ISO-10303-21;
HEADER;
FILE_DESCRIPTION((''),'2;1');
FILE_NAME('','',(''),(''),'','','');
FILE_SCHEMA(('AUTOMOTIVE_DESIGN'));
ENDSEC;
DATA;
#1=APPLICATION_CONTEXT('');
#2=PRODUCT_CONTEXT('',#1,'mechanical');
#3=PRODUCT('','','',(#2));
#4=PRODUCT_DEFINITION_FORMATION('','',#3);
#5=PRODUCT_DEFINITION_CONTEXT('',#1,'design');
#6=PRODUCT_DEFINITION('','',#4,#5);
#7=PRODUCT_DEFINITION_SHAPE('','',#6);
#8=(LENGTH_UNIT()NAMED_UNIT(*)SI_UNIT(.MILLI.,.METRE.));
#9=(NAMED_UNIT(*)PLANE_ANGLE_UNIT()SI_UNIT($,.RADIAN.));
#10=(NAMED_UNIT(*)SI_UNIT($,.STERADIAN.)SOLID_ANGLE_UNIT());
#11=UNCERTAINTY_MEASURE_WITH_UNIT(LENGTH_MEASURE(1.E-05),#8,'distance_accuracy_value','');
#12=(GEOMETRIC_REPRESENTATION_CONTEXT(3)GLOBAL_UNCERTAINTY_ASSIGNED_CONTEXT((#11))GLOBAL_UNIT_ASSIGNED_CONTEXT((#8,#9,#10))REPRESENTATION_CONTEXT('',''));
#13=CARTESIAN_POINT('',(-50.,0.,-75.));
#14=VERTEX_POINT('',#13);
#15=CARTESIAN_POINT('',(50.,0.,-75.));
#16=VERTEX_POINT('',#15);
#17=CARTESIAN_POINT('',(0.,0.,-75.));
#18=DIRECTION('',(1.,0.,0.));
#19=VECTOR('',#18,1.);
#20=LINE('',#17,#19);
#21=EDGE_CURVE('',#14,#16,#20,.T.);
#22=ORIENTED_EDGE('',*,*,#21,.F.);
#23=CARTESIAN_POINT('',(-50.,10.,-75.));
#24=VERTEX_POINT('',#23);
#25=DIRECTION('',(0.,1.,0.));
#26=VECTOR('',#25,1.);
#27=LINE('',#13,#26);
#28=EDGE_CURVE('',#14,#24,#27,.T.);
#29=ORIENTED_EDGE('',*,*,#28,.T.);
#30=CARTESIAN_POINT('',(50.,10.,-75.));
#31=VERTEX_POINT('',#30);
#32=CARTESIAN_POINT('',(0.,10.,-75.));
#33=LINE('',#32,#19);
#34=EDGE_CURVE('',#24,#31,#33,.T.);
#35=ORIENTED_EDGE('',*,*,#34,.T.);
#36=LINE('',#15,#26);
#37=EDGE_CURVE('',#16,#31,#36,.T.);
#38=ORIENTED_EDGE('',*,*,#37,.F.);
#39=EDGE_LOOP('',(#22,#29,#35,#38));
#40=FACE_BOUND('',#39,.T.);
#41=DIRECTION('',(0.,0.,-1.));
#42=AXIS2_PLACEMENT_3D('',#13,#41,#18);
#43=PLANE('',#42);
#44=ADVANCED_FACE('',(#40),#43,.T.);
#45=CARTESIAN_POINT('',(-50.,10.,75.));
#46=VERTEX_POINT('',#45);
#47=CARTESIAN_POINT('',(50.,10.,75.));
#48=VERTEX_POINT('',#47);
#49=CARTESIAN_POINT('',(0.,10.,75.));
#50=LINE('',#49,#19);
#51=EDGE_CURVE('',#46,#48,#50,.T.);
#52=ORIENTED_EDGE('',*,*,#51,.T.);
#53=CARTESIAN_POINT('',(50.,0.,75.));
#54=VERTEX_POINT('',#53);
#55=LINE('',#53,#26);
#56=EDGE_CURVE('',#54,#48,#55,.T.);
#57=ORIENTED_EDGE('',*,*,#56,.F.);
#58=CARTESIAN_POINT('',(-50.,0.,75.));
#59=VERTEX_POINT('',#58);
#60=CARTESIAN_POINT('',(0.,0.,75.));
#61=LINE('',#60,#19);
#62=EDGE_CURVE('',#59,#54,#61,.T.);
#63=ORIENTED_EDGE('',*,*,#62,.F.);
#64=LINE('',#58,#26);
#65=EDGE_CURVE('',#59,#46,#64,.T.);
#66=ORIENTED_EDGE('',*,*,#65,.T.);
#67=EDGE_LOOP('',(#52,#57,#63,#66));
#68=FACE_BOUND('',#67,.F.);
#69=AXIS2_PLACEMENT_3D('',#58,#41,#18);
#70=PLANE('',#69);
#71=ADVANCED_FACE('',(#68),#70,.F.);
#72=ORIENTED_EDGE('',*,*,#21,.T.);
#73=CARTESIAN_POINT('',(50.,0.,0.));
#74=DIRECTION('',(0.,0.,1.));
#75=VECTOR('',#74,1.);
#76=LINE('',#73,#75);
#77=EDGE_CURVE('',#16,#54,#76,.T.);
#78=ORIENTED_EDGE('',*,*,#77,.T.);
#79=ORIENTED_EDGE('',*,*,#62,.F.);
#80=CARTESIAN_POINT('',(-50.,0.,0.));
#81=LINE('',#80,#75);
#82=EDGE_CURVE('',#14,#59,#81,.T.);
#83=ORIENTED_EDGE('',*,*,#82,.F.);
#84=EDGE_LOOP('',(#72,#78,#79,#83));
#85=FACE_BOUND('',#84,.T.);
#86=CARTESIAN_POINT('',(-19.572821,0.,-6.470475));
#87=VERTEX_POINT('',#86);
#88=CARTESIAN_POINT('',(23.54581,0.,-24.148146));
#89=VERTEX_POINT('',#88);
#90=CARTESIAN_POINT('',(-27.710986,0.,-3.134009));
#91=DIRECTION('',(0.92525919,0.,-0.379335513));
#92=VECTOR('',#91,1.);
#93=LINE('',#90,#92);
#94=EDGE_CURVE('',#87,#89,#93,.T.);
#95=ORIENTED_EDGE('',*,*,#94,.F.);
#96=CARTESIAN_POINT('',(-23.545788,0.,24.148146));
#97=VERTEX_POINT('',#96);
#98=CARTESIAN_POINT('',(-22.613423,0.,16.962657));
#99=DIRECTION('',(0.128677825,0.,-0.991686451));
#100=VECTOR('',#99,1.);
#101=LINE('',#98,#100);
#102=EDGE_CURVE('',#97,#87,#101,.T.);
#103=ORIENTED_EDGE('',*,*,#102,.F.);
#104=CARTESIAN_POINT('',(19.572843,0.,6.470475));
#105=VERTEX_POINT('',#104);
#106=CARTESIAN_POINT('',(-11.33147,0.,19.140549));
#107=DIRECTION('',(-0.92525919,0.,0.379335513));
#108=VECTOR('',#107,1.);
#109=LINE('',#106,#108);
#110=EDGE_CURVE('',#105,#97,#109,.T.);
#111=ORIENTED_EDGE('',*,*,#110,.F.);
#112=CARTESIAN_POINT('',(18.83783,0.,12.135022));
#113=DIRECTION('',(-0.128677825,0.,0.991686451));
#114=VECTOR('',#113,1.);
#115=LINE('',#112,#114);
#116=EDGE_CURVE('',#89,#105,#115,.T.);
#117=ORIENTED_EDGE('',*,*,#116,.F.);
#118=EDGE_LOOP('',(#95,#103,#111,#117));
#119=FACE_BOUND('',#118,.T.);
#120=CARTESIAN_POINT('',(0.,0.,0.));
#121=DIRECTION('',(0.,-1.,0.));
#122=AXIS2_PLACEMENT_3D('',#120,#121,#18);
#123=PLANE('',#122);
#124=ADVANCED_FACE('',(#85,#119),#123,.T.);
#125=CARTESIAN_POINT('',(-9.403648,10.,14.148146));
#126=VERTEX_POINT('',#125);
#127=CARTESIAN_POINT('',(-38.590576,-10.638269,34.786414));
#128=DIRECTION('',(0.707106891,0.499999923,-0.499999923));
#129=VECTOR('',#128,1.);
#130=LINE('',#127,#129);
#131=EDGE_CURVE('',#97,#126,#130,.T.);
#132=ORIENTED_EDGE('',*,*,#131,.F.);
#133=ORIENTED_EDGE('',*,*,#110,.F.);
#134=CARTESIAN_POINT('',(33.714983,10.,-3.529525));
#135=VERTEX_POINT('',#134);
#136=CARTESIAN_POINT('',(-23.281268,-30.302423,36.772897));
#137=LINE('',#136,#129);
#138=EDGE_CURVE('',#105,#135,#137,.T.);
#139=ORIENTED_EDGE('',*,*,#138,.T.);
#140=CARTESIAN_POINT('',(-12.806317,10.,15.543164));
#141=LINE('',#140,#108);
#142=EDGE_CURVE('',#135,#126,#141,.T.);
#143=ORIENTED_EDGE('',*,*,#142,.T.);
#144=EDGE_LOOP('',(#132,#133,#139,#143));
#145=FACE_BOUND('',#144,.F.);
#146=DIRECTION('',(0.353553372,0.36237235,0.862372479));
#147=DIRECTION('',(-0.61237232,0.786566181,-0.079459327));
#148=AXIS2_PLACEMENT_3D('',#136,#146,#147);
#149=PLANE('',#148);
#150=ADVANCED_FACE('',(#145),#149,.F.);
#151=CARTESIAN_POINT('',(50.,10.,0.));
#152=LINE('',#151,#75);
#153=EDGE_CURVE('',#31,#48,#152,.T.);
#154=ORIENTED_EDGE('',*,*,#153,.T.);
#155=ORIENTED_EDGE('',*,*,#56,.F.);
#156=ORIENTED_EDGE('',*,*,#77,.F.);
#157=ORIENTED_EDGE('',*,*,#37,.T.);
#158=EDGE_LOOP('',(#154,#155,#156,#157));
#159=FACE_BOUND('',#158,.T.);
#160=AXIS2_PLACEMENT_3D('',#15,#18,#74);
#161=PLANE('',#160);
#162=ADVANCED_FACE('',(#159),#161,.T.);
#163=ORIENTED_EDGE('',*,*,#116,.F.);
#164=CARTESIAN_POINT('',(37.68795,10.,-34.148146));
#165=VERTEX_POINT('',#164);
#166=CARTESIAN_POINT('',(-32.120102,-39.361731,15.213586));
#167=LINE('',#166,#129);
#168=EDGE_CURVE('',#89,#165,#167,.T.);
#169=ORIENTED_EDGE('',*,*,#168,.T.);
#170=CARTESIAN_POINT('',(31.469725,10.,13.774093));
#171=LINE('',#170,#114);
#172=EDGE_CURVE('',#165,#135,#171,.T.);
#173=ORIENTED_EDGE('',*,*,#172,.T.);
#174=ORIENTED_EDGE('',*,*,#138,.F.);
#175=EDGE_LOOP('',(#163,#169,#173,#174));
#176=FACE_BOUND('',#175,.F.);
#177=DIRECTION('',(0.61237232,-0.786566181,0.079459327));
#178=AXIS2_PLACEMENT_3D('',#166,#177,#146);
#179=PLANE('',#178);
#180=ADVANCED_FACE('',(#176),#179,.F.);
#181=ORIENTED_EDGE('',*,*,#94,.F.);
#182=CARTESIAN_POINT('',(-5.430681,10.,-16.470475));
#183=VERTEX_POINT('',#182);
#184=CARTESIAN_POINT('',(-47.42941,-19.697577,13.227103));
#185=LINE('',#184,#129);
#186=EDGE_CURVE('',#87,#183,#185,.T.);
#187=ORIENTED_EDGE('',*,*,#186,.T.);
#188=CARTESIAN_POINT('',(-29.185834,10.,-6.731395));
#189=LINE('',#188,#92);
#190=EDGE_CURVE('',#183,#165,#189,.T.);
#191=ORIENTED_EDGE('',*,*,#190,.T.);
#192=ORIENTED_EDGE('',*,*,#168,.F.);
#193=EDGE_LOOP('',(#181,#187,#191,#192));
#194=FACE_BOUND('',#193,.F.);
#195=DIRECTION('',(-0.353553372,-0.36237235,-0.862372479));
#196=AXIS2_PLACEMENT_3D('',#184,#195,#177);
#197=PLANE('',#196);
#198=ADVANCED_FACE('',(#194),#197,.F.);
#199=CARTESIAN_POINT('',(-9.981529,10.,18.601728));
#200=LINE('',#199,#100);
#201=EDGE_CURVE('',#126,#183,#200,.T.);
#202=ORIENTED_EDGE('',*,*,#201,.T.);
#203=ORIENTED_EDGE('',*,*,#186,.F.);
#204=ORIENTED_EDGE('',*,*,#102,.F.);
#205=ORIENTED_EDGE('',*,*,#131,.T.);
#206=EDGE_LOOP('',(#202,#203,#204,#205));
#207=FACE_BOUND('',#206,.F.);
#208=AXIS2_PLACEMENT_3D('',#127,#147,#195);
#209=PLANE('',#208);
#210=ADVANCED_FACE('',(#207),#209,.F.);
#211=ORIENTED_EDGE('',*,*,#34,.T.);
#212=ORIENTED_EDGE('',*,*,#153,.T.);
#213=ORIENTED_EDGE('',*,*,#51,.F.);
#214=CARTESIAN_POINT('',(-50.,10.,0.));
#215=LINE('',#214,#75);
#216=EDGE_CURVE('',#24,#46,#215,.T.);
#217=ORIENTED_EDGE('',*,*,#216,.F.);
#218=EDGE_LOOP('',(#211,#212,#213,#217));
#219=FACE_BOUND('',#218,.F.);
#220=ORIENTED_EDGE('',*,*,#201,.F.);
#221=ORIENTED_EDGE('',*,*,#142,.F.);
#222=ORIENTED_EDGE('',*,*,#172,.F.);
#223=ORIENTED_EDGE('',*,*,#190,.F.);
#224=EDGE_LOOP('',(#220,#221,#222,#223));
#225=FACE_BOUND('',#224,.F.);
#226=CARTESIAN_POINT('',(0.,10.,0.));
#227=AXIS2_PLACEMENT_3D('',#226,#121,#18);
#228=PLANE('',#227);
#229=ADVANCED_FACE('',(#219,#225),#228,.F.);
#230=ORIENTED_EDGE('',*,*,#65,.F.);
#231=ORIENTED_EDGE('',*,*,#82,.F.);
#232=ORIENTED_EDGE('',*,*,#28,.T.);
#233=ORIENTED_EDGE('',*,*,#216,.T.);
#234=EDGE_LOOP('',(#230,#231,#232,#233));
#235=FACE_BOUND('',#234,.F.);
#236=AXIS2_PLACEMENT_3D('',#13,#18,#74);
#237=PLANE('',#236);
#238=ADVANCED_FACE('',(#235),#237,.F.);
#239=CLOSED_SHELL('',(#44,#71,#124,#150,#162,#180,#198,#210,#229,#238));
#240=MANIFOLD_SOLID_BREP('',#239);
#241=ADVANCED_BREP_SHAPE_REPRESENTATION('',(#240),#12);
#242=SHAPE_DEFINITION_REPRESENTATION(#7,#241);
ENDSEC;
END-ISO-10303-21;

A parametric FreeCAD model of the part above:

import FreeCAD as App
import Part
import Sketcher
from FreeCAD import Vector

doc = App.newDocument("Part")
params = doc.addObject("Spreadsheet::Sheet", "Params")
for row, (alias, value) in enumerate([
    ("sketch1_width", "100 mm"),
    ("sketch1_height", "150 mm"),
    ("pad1_length", "10 mm"),
    ("sketch2_length", "25 mm"),
], start=1):
    params.set(f"A{row}", alias)
    params.set(f"B{row}", "=" + value)
    params.setAlias(f"B{row}", alias)

body = doc.addObject("PartDesign::Body", "Body")

# Sketch on XZ plane
sketch1 = doc.addObject("Sketcher::SketchObject", "Sketch")
body.addObject(sketch1)
sketch1.AttachmentSupport = (doc.XZ_Plane, [""])
sketch1.MapMode = "FlatFace"
sketch1.addGeometry(Part.LineSegment(Vector(-50, 75, 0), Vector(-50, -75, 0)), False)
sketch1.addGeometry(Part.LineSegment(Vector(-50, -75, 0), Vector(50, -75, 0)), False)
sketch1.addGeometry(Part.LineSegment(Vector(50, -75, 0), Vector(50, 75, 0)), False)
sketch1.addGeometry(Part.LineSegment(Vector(50, 75, 0), Vector(-50, 75, 0)), False)
sketch1.addConstraint(Sketcher.Constraint("Coincident", 0, 2, 1, 1))
sketch1.addConstraint(Sketcher.Constraint("Coincident", 1, 2, 2, 1))
sketch1.addConstraint(Sketcher.Constraint("Coincident", 2, 2, 3, 1))
sketch1.addConstraint(Sketcher.Constraint("Coincident", 3, 2, 0, 1))
sketch1.addConstraint(Sketcher.Constraint("Vertical", 0))
sketch1.addConstraint(Sketcher.Constraint("Horizontal", 1))
sketch1.addConstraint(Sketcher.Constraint("Vertical", 2))
sketch1.addConstraint(Sketcher.Constraint("Horizontal", 3))
sketch1.addConstraint(Sketcher.Constraint("Symmetric", 0, 2, 2, 2, -1, 1))
sketch1.addConstraint(Sketcher.Constraint("DistanceX", 1, 1, 1, 2, 100.0))
sketch1.addConstraint(Sketcher.Constraint("DistanceY", 0, 2, 0, 1, 150.0))
sketch1.setExpression("Constraints[9]", "Params.sketch1_width")
sketch1.setExpression("Constraints[10]", "Params.sketch1_height")
pad1 = doc.addObject("PartDesign::Pad", "Pad")
body.addObject(pad1)
pad1.Profile = sketch1
pad1.setExpression("Length", "Params.pad1_length")
pad1.Reversed = True

# Sketch on an angled plane
sketch2 = doc.addObject("Sketcher::SketchObject", "Sketch001")
body.addObject(sketch2)
sketch2.Placement = App.Placement(Vector(-35.355339, -25, 25), App.Rotation(Vector(0.408248194, -0.866025448, -0.288675137), Vector(0.577350204, -0.000000113, 0.816496628), Vector(-0.707106891, -0.499999923, 0.499999923), "ZXY"))
sketch2.addGeometry(Part.LineSegment(Vector(-17, 6, 0), Vector(-6, -17, 0)), False)
sketch2.addGeometry(Part.LineSegment(Vector(-6, -17, 0), Vector(17, -6, 0)), False)
sketch2.addGeometry(Part.LineSegment(Vector(17, -6, 0), Vector(6, 17, 0)), False)
sketch2.addGeometry(Part.LineSegment(Vector(6, 17, 0), Vector(-17, 6, 0)), False)
sketch2.addConstraint(Sketcher.Constraint("Coincident", 0, 2, 1, 1))
sketch2.addConstraint(Sketcher.Constraint("Coincident", 1, 2, 2, 1))
sketch2.addConstraint(Sketcher.Constraint("Coincident", 2, 2, 3, 1))
sketch2.addConstraint(Sketcher.Constraint("Coincident", 3, 2, 0, 1))
sketch2.addConstraint(Sketcher.Constraint("Symmetric", 0, 2, 2, 2, -1, 1))
sketch2.addConstraint(Sketcher.Constraint("Symmetric", 1, 2, 3, 2, -1, 1))
sketch2.addConstraint(Sketcher.Constraint("Perpendicular", 0, 1))
sketch2.addConstraint(Sketcher.Constraint("Equal", 0, 1))
sketch2.addConstraint(Sketcher.Constraint("Distance", 0, 25.0))
sketch2.addConstraint(Sketcher.Constraint("DistanceY", 0, 2, 2, 2, 33.166998))
sketch2.setExpression("Constraints[8]", "Params.sketch2_length")
pocket1 = doc.addObject("PartDesign::Pocket", "Pocket")
body.addObject(pocket1)
pocket1.Profile = sketch2
pocket1.Type = "ThroughAll"

doc.recompute()
